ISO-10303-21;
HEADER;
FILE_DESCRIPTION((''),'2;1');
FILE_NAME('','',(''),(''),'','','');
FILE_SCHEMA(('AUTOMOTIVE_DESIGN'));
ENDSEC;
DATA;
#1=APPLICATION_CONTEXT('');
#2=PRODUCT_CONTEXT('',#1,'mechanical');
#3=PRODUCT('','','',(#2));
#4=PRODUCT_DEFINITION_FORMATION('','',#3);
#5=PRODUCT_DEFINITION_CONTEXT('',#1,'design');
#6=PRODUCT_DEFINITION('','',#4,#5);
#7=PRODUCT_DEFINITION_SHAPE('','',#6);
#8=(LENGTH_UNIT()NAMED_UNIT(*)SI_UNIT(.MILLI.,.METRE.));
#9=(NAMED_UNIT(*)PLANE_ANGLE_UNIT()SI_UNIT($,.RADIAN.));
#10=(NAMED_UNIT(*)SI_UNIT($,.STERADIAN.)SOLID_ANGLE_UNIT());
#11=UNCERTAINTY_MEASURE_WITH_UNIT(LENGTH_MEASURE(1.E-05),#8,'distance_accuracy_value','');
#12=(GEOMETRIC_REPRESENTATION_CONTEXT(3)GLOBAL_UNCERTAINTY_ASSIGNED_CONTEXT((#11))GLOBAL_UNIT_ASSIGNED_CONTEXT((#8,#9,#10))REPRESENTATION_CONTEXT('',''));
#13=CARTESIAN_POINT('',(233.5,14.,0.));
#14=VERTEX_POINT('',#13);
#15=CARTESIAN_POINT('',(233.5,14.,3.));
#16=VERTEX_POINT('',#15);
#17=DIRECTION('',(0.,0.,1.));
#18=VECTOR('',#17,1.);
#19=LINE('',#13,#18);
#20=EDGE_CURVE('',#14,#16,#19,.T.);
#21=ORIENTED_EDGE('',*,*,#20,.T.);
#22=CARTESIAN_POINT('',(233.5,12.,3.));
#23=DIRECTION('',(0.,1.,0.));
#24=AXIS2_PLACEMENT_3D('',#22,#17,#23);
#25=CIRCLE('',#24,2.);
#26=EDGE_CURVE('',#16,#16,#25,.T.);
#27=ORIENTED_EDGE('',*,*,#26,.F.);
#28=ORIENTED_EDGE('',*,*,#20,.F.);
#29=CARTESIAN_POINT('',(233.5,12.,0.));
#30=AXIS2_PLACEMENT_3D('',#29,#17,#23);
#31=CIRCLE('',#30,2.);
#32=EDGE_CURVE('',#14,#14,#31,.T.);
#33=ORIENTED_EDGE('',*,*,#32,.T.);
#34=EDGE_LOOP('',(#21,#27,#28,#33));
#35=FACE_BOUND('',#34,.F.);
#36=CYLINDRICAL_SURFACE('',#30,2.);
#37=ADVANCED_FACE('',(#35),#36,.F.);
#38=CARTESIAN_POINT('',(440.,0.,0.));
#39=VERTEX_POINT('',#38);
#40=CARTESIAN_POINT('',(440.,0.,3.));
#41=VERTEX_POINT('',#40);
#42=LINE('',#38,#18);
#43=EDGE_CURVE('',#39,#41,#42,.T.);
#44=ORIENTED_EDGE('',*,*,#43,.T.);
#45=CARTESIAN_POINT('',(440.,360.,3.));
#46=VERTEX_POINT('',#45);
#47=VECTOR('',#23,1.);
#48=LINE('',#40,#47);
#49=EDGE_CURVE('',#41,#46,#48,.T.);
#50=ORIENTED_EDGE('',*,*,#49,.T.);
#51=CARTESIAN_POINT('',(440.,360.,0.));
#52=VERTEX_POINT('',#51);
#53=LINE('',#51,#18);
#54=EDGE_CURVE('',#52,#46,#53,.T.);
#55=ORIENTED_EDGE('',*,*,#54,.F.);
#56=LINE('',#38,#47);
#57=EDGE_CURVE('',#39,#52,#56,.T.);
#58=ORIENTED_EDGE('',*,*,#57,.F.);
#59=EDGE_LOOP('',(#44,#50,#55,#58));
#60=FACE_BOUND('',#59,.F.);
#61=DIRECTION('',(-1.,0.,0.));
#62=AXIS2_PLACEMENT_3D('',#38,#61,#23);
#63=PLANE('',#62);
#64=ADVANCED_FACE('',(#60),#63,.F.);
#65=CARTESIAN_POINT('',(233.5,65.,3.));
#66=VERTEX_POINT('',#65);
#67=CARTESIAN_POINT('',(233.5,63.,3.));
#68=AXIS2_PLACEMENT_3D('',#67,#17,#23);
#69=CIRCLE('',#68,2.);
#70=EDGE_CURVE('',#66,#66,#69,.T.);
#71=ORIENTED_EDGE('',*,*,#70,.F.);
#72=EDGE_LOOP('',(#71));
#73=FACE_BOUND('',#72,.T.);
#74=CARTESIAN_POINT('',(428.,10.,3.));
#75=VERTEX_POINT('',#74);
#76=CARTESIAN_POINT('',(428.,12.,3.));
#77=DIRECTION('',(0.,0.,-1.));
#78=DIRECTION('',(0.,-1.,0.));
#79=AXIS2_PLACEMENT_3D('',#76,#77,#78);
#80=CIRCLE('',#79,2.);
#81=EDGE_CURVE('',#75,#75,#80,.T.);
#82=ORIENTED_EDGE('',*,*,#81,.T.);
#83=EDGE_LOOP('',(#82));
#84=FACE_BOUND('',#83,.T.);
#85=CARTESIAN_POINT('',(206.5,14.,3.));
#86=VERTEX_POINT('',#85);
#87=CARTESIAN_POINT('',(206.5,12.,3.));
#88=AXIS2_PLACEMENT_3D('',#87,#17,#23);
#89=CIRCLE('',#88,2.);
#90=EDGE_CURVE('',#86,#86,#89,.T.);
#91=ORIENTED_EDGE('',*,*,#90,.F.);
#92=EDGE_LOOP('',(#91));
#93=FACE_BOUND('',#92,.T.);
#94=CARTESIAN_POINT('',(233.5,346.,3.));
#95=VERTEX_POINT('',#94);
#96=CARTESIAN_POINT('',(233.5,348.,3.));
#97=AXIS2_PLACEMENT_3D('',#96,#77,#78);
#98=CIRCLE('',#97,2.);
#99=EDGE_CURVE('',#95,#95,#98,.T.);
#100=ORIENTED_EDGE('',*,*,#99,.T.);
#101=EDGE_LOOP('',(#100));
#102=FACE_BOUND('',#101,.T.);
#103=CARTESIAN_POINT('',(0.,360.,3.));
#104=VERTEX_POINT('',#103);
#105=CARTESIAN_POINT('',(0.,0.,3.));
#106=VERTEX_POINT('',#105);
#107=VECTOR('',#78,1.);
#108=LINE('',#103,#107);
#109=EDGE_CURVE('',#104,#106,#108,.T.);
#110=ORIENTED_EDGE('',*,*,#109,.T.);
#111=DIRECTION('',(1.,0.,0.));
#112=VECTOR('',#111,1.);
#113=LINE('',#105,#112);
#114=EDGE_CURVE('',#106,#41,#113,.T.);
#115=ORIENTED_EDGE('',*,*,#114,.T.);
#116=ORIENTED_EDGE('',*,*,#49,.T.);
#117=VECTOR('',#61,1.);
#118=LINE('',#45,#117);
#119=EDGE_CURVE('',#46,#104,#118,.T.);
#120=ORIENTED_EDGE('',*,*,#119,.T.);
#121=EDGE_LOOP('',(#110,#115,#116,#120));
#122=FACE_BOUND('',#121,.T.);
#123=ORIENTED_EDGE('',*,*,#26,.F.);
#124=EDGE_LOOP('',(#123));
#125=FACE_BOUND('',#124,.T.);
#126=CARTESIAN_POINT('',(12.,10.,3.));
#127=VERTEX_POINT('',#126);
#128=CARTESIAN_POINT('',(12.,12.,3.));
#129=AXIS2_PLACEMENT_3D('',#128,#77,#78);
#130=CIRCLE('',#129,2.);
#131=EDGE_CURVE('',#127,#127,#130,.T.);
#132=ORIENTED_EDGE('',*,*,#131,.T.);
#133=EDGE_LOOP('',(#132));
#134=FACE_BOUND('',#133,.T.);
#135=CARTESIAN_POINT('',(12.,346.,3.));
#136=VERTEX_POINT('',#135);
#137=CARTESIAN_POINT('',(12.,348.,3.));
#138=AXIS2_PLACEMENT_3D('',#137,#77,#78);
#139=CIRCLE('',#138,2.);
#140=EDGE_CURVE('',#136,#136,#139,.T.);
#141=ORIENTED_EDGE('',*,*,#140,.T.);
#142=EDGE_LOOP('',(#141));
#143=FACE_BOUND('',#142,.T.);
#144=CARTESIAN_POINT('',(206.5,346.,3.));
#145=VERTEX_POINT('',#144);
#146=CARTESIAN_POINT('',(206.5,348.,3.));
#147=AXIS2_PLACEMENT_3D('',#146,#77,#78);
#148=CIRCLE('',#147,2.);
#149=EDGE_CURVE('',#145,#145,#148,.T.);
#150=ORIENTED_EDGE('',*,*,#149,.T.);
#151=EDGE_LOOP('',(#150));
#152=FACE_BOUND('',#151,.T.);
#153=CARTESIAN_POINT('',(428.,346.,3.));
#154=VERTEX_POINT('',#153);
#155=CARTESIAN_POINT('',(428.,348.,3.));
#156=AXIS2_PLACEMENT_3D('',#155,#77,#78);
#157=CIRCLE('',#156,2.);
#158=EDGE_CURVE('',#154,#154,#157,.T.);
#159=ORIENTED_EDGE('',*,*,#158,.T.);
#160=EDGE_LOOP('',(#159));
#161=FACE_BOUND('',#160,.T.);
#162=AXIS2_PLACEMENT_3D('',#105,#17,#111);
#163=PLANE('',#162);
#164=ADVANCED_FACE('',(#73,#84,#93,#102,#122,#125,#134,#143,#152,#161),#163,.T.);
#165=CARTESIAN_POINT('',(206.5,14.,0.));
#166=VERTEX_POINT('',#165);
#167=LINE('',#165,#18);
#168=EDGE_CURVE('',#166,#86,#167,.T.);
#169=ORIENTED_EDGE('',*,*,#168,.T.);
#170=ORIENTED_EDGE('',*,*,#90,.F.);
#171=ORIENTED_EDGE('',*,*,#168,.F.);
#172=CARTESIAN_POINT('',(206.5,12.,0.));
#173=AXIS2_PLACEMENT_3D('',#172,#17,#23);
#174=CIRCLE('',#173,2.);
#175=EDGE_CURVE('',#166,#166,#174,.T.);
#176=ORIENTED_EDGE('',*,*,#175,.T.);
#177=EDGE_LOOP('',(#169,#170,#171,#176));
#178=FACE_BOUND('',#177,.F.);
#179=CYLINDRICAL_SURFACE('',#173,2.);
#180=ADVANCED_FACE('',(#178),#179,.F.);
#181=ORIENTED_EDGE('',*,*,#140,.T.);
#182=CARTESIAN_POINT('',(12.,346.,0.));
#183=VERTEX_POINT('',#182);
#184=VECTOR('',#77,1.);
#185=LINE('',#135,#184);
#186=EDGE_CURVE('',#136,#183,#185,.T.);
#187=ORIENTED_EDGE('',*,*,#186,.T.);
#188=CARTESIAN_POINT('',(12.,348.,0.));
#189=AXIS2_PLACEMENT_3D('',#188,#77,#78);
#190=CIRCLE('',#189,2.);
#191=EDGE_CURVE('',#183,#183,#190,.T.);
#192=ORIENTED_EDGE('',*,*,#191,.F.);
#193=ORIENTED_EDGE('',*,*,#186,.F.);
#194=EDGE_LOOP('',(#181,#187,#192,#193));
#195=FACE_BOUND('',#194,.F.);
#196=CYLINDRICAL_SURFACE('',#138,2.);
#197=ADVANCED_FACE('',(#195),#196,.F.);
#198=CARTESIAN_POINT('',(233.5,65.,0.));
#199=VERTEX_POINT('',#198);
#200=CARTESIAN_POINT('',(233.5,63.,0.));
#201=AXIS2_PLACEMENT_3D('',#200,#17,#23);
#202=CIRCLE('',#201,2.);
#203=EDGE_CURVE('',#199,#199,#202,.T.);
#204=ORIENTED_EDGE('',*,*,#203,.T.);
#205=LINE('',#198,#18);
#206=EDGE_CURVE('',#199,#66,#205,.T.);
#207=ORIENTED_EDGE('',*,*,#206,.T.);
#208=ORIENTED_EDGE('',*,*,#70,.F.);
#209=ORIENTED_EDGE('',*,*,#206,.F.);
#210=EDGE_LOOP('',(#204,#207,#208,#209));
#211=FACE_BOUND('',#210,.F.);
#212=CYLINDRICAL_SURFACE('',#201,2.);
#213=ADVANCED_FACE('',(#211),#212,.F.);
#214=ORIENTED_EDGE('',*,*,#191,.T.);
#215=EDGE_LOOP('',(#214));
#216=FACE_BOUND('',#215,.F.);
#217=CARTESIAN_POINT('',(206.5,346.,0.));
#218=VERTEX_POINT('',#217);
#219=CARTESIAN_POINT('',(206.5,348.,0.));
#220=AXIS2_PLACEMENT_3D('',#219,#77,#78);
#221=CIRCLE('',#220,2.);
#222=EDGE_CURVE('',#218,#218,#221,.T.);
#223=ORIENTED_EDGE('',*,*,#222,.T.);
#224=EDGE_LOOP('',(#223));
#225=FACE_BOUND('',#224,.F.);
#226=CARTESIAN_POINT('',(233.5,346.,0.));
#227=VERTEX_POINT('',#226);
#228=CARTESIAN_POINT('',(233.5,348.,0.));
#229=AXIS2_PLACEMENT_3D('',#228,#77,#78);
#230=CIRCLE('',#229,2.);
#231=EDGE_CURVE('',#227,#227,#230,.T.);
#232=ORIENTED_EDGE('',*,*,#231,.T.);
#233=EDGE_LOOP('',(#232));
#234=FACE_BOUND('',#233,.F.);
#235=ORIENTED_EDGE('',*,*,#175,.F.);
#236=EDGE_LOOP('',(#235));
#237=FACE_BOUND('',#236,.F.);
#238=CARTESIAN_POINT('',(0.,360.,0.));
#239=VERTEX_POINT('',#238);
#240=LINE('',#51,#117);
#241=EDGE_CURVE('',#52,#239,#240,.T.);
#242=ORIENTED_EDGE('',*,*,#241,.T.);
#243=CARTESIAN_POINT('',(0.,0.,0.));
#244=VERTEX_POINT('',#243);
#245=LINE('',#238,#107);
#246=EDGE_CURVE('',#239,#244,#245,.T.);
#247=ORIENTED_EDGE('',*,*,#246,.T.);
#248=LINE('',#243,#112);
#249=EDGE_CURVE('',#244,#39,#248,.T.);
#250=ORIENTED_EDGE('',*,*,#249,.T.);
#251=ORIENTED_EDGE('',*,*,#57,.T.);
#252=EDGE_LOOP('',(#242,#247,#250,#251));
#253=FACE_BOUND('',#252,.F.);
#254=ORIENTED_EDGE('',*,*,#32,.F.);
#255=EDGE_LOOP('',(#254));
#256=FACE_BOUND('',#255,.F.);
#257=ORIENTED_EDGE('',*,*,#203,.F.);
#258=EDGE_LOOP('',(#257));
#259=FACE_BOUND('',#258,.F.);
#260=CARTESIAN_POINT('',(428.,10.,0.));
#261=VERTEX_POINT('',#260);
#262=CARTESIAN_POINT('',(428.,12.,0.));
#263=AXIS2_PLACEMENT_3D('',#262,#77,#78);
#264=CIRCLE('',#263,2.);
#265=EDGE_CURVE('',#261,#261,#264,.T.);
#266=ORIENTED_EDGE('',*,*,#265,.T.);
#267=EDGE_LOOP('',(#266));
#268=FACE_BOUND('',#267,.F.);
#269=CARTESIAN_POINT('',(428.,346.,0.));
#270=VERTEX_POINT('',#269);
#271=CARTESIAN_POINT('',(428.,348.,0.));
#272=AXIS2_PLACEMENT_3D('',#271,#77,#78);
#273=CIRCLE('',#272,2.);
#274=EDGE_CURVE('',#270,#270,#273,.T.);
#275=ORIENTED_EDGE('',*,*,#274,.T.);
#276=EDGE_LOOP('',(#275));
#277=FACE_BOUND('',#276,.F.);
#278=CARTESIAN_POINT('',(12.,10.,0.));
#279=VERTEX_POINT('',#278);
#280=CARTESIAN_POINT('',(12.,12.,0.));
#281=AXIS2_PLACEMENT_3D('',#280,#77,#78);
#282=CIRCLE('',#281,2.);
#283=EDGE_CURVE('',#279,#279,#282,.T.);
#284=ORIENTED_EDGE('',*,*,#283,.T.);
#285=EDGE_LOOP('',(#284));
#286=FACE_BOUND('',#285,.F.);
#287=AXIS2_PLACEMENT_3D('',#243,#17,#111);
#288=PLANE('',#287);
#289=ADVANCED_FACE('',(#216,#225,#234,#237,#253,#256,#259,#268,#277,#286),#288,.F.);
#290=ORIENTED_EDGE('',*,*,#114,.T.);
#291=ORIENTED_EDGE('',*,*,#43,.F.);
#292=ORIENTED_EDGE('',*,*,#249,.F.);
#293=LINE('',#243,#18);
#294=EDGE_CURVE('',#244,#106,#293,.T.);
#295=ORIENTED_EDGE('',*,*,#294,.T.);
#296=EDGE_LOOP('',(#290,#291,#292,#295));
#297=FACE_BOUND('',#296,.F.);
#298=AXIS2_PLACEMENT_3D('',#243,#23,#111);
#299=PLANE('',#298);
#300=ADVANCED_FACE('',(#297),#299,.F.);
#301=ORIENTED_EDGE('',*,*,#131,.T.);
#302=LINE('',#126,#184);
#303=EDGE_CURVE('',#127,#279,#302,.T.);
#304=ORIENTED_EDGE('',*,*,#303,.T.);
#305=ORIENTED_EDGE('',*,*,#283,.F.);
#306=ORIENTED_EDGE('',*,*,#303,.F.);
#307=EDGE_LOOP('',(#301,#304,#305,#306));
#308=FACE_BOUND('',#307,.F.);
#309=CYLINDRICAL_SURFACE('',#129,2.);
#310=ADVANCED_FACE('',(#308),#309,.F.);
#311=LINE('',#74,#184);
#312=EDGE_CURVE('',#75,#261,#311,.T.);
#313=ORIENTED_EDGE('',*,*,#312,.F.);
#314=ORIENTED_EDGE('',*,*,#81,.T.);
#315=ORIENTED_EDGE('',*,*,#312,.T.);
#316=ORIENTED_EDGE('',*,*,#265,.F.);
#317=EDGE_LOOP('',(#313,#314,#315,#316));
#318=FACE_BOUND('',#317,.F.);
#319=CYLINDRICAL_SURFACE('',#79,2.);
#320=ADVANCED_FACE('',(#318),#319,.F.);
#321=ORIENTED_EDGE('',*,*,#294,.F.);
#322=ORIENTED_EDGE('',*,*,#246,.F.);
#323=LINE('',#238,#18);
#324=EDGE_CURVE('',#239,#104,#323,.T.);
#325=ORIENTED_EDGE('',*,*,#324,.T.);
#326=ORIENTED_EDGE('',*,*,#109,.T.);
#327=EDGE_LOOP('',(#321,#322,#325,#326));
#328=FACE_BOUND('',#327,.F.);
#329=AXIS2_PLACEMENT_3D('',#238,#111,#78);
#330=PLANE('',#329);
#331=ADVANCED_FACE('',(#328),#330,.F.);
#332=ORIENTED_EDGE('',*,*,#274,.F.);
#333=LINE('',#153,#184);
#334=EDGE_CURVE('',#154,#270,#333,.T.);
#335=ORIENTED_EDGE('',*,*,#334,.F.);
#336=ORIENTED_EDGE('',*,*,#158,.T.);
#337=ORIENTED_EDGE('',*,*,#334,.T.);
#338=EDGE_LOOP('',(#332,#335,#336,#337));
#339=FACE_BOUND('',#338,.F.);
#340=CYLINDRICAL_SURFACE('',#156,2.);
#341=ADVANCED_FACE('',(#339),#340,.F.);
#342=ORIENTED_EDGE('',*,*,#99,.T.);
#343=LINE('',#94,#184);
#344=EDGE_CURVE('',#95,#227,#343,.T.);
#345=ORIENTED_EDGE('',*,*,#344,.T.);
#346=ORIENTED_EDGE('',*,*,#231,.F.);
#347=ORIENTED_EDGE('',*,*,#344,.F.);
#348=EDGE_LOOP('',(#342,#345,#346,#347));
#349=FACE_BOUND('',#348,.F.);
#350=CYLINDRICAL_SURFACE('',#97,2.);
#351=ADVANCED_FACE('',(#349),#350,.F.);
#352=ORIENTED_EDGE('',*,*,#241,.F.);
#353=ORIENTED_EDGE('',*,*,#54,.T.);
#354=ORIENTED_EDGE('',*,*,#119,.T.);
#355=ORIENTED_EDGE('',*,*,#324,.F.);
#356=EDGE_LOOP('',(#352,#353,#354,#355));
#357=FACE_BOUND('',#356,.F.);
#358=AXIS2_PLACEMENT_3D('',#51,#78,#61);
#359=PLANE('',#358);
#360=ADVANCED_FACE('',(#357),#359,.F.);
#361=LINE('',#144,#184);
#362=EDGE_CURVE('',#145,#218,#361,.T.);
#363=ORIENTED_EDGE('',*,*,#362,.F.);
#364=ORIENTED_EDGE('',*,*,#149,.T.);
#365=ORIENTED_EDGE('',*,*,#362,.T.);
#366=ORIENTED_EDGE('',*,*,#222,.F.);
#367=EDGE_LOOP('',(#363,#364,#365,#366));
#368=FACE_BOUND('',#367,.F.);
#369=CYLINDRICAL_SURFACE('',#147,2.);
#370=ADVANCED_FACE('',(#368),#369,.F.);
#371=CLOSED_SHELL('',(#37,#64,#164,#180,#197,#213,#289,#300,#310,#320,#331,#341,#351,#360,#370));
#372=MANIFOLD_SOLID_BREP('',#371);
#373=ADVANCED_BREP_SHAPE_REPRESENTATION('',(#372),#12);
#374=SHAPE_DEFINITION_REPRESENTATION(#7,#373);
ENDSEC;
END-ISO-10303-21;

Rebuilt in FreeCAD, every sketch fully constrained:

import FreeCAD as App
import Part
import Sketcher

V = App.Vector

doc = App.newDocument("Part")
params = doc.addObject("Spreadsheet::Sheet", "Params")
for row, (alias, value) in enumerate([
    ("sketch1_width", "440 mm"),
    ("sketch1_height", "360 mm"),
    ("pad1_length", "3 mm"),
    ("sketch2_diameter", "4 mm"),
    ("hole_diameter", "4 mm"),
    ("sketch3_diameter", "4 mm"),
    ("hole2_diameter", "4 mm"),
    ("sketch4_diameter", "4 mm"),
    ("hole3_diameter", "4 mm"),
    ("sketch5_diameter", "4 mm"),
    ("hole4_diameter", "4 mm"),
    ("sketch6_diameter", "4 mm"),
    ("hole5_diameter", "4 mm"),
    ("sketch7_diameter", "4 mm"),
    ("hole6_diameter", "4 mm"),
    ("sketch8_diameter", "4 mm"),
    ("hole7_diameter", "4 mm"),
    ("sketch9_diameter", "4 mm"),
    ("hole8_diameter", "4 mm"),
    ("sketch10_diameter", "4 mm"),
    ("hole9_diameter", "4 mm"),
], start=1):
    params.set(f"A{row}", alias)
    params.set(f"B{row}", "=" + value)
    params.setAlias(f"B{row}", alias)

body = doc.addObject("PartDesign::Body", "Body")

sketch1 = doc.addObject("Sketcher::SketchObject", "Sketch")
body.addObject(sketch1)
sketch1.AttachmentSupport = (doc.XY_Plane, [""])
sketch1.MapMode = "FlatFace"
sketch1.addGeometry([
    Part.LineSegment(V(0, 360, 0), V(0, 0, 0)),
    Part.LineSegment(V(0, 0, 0), V(440, 0, 0)),
    Part.LineSegment(V(440, 0, 0), V(440, 360, 0)),
    Part.LineSegment(V(440, 360, 0), V(0, 360, 0)),
], False)
sketch1.addConstraint([
    Sketcher.Constraint("Coincident", 0, 2, 1, 1),
    Sketcher.Constraint("Coincident", 1, 2, 2, 1),
    Sketcher.Constraint("Coincident", 2, 2, 3, 1),
    Sketcher.Constraint("Coincident", 3, 2, 0, 1),
    Sketcher.Constraint("Vertical", 0),
    Sketcher.Constraint("Horizontal", 1),
    Sketcher.Constraint("Vertical", 2),
    Sketcher.Constraint("Horizontal", 3),
    Sketcher.Constraint("Coincident", 0, 2, -1, 1),
    Sketcher.Constraint("DistanceX", 1, 1, 1, 2, 440.0),
    Sketcher.Constraint("DistanceY", 0, 2, 0, 1, 360.0),
])
sketch1.setExpression("Constraints[9]", "Params.sketch1_width")
sketch1.setExpression("Constraints[10]", "Params.sketch1_height")
pad1 = doc.addObject("PartDesign::Pad", "Pad")
body.addObject(pad1)
pad1.Profile = sketch1
pad1.setExpression("Length", "Params.pad1_length")

sketch2 = doc.addObject("Sketcher::SketchObject", "Sketch001")
body.addObject(sketch2)
sketch2.AttachmentSupport = (doc.XY_Plane, [""])
sketch2.MapMode = "FlatFace"
sketch2.AttachmentOffset = App.Placement(V(0, 0, 3), App.Rotation())
sketch2.addGeometry(Part.Circle(V(12, 12, 0), V(0, 0, 1), 2), False)
sketch2.addConstraint([
    Sketcher.Constraint("Diameter", 0, 4.0),
    Sketcher.Constraint("DistanceX", -1, 1, 0, 3, 12.0),
    Sketcher.Constraint("DistanceY", -1, 1, 0, 3, 12.0),
])
sketch2.setExpression("Constraints[0]", "Params.sketch2_diameter")
doc.recompute()
hole = doc.addObject("PartDesign::Hole", "Hole")
body.addObject(hole)
hole.Profile = sketch2
hole.ThreadType = "None"
hole.setExpression("Diameter", "Params.hole_diameter")
hole.DepthType = "ThroughAll"

sketch3 = doc.addObject("Sketcher::SketchObject", "Sketch002")
body.addObject(sketch3)
sketch3.AttachmentSupport = (doc.XY_Plane, [""])
sketch3.MapMode = "FlatFace"
sketch3.AttachmentOffset = App.Placement(V(0, 0, 3), App.Rotation())
sketch3.addGeometry(Part.Circle(V(428, 12, 0), V(0, 0, 1), 2), False)
sketch3.addConstraint([
    Sketcher.Constraint("Diameter", 0, 4.0),
    Sketcher.Constraint("DistanceX", -1, 1, 0, 3, 428.0),
    Sketcher.Constraint("DistanceY", -1, 1, 0, 3, 12.0),
])
sketch3.setExpression("Constraints[0]", "Params.sketch3_diameter")
doc.recompute()
hole2 = doc.addObject("PartDesign::Hole", "Hole001")
body.addObject(hole2)
hole2.Profile = sketch3
hole2.ThreadType = "None"
hole2.setExpression("Diameter", "Params.hole2_diameter")
hole2.DepthType = "ThroughAll"

sketch4 = doc.addObject("Sketcher::SketchObject", "Sketch003")
body.addObject(sketch4)
sketch4.AttachmentSupport = (doc.XY_Plane, [""])
sketch4.MapMode = "FlatFace"
sketch4.AttachmentOffset = App.Placement(V(0, 0, 3), App.Rotation())
sketch4.addGeometry(Part.Circle(V(428, 348, 0), V(0, 0, 1), 2), False)
sketch4.addConstraint([
    Sketcher.Constraint("Diameter", 0, 4.0),
    Sketcher.Constraint("DistanceX", -1, 1, 0, 3, 428.0),
    Sketcher.Constraint("DistanceY", -1, 1, 0, 3, 348.0),
])
sketch4.setExpression("Constraints[0]", "Params.sketch4_diameter")
doc.recompute()
hole3 = doc.addObject("PartDesign::Hole", "Hole002")
body.addObject(hole3)
hole3.Profile = sketch4
hole3.ThreadType = "None"
hole3.setExpression("Diameter", "Params.hole3_diameter")
hole3.DepthType = "ThroughAll"

sketch5 = doc.addObject("Sketcher::SketchObject", "Sketch004")
body.addObject(sketch5)
sketch5.AttachmentSupport = (doc.XY_Plane, [""])
sketch5.MapMode = "FlatFace"
sketch5.AttachmentOffset = App.Placement(V(0, 0, 3), App.Rotation())
sketch5.addGeometry(Part.Circle(V(12, 348, 0), V(0, 0, 1), 2), False)
sketch5.addConstraint([
    Sketcher.Constraint("Diameter", 0, 4.0),
    Sketcher.Constraint("DistanceX", -1, 1, 0, 3, 12.0),
    Sketcher.Constraint("DistanceY", -1, 1, 0, 3, 348.0),
])
sketch5.setExpression("Constraints[0]", "Params.sketch5_diameter")
doc.recompute()
hole4 = doc.addObject("PartDesign::Hole", "Hole003")
body.addObject(hole4)
hole4.Profile = sketch5
hole4.ThreadType = "None"
hole4.setExpression("Diameter", "Params.hole4_diameter")
hole4.DepthType = "ThroughAll"

sketch6 = doc.addObject("Sketcher::SketchObject", "Sketch005")
body.addObject(sketch6)
sketch6.AttachmentSupport = (doc.XY_Plane, [""])
sketch6.MapMode = "FlatFace"
sketch6.addGeometry(Part.Circle(V(233.5, 12, 0), V(0, 0, 1), 2), False)
sketch6.addConstraint([
    Sketcher.Constraint("Diameter", 0, 4.0),
    Sketcher.Constraint("DistanceY", -1, 1, 0, 3, 12.0),
    Sketcher.Constraint("DistanceX", -1, 1, 0, 3, 233.5),
])
sketch6.setExpression("Constraints[0]", "Params.sketch6_diameter")
doc.recompute()
hole5 = doc.addObject("PartDesign::Hole", "Hole004")
body.addObject(hole5)
hole5.Profile = sketch6
hole5.ThreadType = "None"
hole5.setExpression("Diameter", "Params.hole5_diameter")
hole5.DepthType = "ThroughAll"
hole5.Reversed = True

sketch7 = doc.addObject("Sketcher::SketchObject", "Sketch006")
body.addObject(sketch7)
sketch7.AttachmentSupport = (doc.XY_Plane, [""])
sketch7.MapMode = "FlatFace"
sketch7.addGeometry(Part.Circle(V(206.5, 12, 0), V(0, 0, 1), 2), False)
sketch7.addConstraint([
    Sketcher.Constraint("Diameter", 0, 4.0),
    Sketcher.Constraint("DistanceY", -1, 1, 0, 3, 12.0),
    Sketcher.Constraint("DistanceX", -1, 1, 0, 3, 206.5),
])
sketch7.setExpression("Constraints[0]", "Params.sketch7_diameter")
doc.recompute()
hole6 = doc.addObject("PartDesign::Hole", "Hole005")
body.addObject(hole6)
hole6.Profile = sketch7
hole6.ThreadType = "None"
hole6.setExpression("Diameter", "Params.hole6_diameter")
hole6.DepthType = "ThroughAll"
hole6.Reversed = True

sketch8 = doc.addObject("Sketcher::SketchObject", "Sketch007")
body.addObject(sketch8)
sketch8.AttachmentSupport = (doc.XY_Plane, [""])
sketch8.MapMode = "FlatFace"
sketch8.addGeometry(Part.Circle(V(233.5, 63, 0), V(0, 0, 1), 2), False)
sketch8.addConstraint([
    Sketcher.Constraint("Diameter", 0, 4.0),
    Sketcher.Constraint("DistanceY", -1, 1, 0, 3, 63.0),
    Sketcher.Constraint("DistanceX", -1, 1, 0, 3, 233.5),
])
sketch8.setExpression("Constraints[0]", "Params.sketch8_diameter")
doc.recompute()
hole7 = doc.addObject("PartDesign::Hole", "Hole006")
body.addObject(hole7)
hole7.Profile = sketch8
hole7.ThreadType = "None"
hole7.setExpression("Diameter", "Params.hole7_diameter")
hole7.DepthType = "ThroughAll"
hole7.Reversed = True

sketch9 = doc.addObject("Sketcher::SketchObject", "Sketch008")
body.addObject(sketch9)
sketch9.AttachmentSupport = (doc.XY_Plane, [""])
sketch9.MapMode = "FlatFace"
sketch9.AttachmentOffset = App.Placement(V(0, 0, 3), App.Rotation())
sketch9.addGeometry(Part.Circle(V(233.5, 348, 0), V(0, 0, 1), 2), False)
sketch9.addConstraint([
    Sketcher.Constraint("Diameter", 0, 4.0),
    Sketcher.Constraint("DistanceY", -1, 1, 0, 3, 348.0),
    Sketcher.Constraint("DistanceX", -1, 1, 0, 3, 233.5),
])
sketch9.setExpression("Constraints[0]", "Params.sketch9_diameter")
doc.recompute()
hole8 = doc.addObject("PartDesign::Hole", "Hole007")
body.addObject(hole8)
hole8.Profile = sketch9
hole8.ThreadType = "None"
hole8.setExpression("Diameter", "Params.hole8_diameter")
hole8.DepthType = "ThroughAll"

sketch10 = doc.addObject("Sketcher::SketchObject", "Sketch009")
body.addObject(sketch10)
sketch10.AttachmentSupport = (doc.XY_Plane, [""])
sketch10.MapMode = "FlatFace"
sketch10.AttachmentOffset = App.Placement(V(0, 0, 3), App.Rotation())
sketch10.addGeometry(Part.Circle(V(206.5, 348, 0), V(0, 0, 1), 2), False)
sketch10.addConstraint([
    Sketcher.Constraint("Diameter", 0, 4.0),
    Sketcher.Constraint("DistanceY", -1, 1, 0, 3, 348.0),
    Sketcher.Constraint("DistanceX", -1, 1, 0, 3, 206.5),
])
sketch10.setExpression("Constraints[0]", "Params.sketch10_diameter")
doc.recompute()
hole9 = doc.addObject("PartDesign::Hole", "Hole008")
body.addObject(hole9)
hole9.Profile = sketch10
hole9.ThreadType = "None"
hole9.setExpression("Diameter", "Params.hole9_diameter")
hole9.DepthType = "ThroughAll"

doc.recompute()
